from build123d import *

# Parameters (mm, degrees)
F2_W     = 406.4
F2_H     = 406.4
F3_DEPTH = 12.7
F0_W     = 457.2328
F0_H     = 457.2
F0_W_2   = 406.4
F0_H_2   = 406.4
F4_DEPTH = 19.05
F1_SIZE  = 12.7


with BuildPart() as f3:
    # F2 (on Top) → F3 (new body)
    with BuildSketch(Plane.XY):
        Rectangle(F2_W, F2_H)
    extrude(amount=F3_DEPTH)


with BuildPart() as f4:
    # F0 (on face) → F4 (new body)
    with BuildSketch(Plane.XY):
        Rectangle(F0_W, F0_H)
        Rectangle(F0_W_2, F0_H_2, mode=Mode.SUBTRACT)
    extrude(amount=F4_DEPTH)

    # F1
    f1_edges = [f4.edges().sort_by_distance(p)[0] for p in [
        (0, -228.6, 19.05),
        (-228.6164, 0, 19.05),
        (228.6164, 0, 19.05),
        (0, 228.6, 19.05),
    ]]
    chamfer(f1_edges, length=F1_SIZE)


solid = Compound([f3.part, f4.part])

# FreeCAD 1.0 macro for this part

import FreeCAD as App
import Part
import Sketcher
from FreeCAD import Vector
Q = App.Units.Quantity


def edges_at(feature, points):
    """Names of the edges that pass closest to the given points."""
    edges = feature.Shape.Edges
    near = lambda p: min(range(len(edges)), key=lambda i: edges[i].distToShape(Part.Vertex(*p))[0])
    return sorted({f"Edge{near(p) + 1}" for p in points})


def add_polygon(sketch, points):
    """Adds a closed chain of lines whose ends are joined by coincident constraints."""
    first, n = sketch.GeometryCount, len(points)
    for a, b in zip(points, points[1:] + points[:1]):
        sketch.addGeometry(Part.LineSegment(App.Vector(*a, 0), App.Vector(*b, 0)), False)
    for i in range(n):
        sketch.addConstraint(Sketcher.Constraint("Coincident", first + i, 2, first + (i + 1) % n, 1))

doc = App.newDocument("Part")
params = doc.addObject("Spreadsheet::Sheet", "Params")
for row, (alias, value) in enumerate([
    ("sketch1_width", "16 in"),
    ("pad1_length", "0.5 in"),
    ("sketch2_width", "16 in"),
    ("sketch2_height", "18 in"),
    ("pad2_length", "0.75 in"),
    ("chamfer_size", "0.5 in"),
], start=1):
    params.set(f"A{row}", alias)
    params.set(f"B{row}", "=" + value)
    params.setAlias(f"B{row}", alias)

body = doc.addObject("PartDesign::Body", "Body")

# Sketch on XY plane
sketch1 = doc.addObject("Sketcher::SketchObject", "Sketch")
body.addObject(sketch1)
sketch1.AttachmentSupport = (doc.XY_Plane, [""])
sketch1.MapMode = "FlatFace"
add_polygon(sketch1, [(-203, 203), (-203, -203), (203, -203), (203, 203)])  # lines 0-3
sketch1.addConstraint([
    Sketcher.Constraint("Vertical", 0),
    Sketcher.Constraint("Horizontal", 1),
    Sketcher.Constraint("Vertical", 2),
    Sketcher.Constraint("Horizontal", 3),
    Sketcher.Constraint("Symmetric", 0, 2, 2, 2, -1, 1),
    Sketcher.Constraint("Equal", 3, 0),
    Sketcher.Constraint("DistanceX", 1, 1, 1, 2, Q("16 in")),
])
sketch1.setExpression("Constraints[10]", "Params.sketch1_width")
pad1 = doc.addObject("PartDesign::Pad", "Pad")
body.addObject(pad1)
pad1.Profile = sketch1
pad1.setExpression("Length", "Params.pad1_length")
body2 = doc.addObject("PartDesign::Body", "Body001")

# Sketch on XY plane
sketch2 = doc.addObject("Sketcher::SketchObject", "Sketch001")
body2.addObject(sketch2)
sketch2.AttachmentSupport = (doc.getObject("XY_Plane001"), [""])
sketch2.MapMode = "FlatFace"
add_polygon(sketch2, [(-229, 229), (-229, -229), (229, -229), (229, 229)])  # lines 0-3
add_polygon(sketch2, [(203, -203), (-203, -203), (-203, 203), (203, 203)])  # lines 4-7
sketch2.addConstraint([
    Sketcher.Constraint("Vertical", 0),
    Sketcher.Constraint("Horizontal", 1),
    Sketcher.Constraint("Vertical", 2),
    Sketcher.Constraint("Horizontal", 3),
    Sketcher.Constraint("Horizontal", 4),
    Sketcher.Constraint("Vertical", 5),
    Sketcher.Constraint("Horizontal", 6),
    Sketcher.Constraint("Vertical", 7),
    Sketcher.Constraint("Symmetric", 0, 2, 2, 2, -1, 1),
    Sketcher.Constraint("Symmetric", 4, 2, 6, 2, -1, 1),
    Sketcher.Constraint("Equal", 6, 5),
    Sketcher.Constraint("DistanceX", 4, 2, 4, 1, Q("16 in")),
    Sketcher.Constraint("DistanceY", 0, 2, 0, 1, Q("18 in")),
    Sketcher.Constraint("DistanceX", 1, 1, 1, 2, Q("457.2328 mm")),
])
sketch2.setExpression("Constraints[19]", "Params.sketch2_width")
sketch2.setExpression("Constraints[20]", "Params.sketch2_height")
pad2 = doc.addObject("PartDesign::Pad", "Pad001")
body2.addObject(pad2)
pad2.Profile = sketch2
pad2.setExpression("Length", "Params.pad2_length")
doc.recompute()

chamfer = doc.addObject("PartDesign::Chamfer", "Chamfer")
body2.addObject(chamfer)
chamfer.Base = (pad2, edges_at(pad2, [
    (0, -228.6, 19.05),
    (-228.616, 0, 19.05),
    (228.616, 0, 19.05),
    (0, 228.6, 19.05),
]))
chamfer.setExpression("Size", "Params.chamfer_size")

doc.recompute()
